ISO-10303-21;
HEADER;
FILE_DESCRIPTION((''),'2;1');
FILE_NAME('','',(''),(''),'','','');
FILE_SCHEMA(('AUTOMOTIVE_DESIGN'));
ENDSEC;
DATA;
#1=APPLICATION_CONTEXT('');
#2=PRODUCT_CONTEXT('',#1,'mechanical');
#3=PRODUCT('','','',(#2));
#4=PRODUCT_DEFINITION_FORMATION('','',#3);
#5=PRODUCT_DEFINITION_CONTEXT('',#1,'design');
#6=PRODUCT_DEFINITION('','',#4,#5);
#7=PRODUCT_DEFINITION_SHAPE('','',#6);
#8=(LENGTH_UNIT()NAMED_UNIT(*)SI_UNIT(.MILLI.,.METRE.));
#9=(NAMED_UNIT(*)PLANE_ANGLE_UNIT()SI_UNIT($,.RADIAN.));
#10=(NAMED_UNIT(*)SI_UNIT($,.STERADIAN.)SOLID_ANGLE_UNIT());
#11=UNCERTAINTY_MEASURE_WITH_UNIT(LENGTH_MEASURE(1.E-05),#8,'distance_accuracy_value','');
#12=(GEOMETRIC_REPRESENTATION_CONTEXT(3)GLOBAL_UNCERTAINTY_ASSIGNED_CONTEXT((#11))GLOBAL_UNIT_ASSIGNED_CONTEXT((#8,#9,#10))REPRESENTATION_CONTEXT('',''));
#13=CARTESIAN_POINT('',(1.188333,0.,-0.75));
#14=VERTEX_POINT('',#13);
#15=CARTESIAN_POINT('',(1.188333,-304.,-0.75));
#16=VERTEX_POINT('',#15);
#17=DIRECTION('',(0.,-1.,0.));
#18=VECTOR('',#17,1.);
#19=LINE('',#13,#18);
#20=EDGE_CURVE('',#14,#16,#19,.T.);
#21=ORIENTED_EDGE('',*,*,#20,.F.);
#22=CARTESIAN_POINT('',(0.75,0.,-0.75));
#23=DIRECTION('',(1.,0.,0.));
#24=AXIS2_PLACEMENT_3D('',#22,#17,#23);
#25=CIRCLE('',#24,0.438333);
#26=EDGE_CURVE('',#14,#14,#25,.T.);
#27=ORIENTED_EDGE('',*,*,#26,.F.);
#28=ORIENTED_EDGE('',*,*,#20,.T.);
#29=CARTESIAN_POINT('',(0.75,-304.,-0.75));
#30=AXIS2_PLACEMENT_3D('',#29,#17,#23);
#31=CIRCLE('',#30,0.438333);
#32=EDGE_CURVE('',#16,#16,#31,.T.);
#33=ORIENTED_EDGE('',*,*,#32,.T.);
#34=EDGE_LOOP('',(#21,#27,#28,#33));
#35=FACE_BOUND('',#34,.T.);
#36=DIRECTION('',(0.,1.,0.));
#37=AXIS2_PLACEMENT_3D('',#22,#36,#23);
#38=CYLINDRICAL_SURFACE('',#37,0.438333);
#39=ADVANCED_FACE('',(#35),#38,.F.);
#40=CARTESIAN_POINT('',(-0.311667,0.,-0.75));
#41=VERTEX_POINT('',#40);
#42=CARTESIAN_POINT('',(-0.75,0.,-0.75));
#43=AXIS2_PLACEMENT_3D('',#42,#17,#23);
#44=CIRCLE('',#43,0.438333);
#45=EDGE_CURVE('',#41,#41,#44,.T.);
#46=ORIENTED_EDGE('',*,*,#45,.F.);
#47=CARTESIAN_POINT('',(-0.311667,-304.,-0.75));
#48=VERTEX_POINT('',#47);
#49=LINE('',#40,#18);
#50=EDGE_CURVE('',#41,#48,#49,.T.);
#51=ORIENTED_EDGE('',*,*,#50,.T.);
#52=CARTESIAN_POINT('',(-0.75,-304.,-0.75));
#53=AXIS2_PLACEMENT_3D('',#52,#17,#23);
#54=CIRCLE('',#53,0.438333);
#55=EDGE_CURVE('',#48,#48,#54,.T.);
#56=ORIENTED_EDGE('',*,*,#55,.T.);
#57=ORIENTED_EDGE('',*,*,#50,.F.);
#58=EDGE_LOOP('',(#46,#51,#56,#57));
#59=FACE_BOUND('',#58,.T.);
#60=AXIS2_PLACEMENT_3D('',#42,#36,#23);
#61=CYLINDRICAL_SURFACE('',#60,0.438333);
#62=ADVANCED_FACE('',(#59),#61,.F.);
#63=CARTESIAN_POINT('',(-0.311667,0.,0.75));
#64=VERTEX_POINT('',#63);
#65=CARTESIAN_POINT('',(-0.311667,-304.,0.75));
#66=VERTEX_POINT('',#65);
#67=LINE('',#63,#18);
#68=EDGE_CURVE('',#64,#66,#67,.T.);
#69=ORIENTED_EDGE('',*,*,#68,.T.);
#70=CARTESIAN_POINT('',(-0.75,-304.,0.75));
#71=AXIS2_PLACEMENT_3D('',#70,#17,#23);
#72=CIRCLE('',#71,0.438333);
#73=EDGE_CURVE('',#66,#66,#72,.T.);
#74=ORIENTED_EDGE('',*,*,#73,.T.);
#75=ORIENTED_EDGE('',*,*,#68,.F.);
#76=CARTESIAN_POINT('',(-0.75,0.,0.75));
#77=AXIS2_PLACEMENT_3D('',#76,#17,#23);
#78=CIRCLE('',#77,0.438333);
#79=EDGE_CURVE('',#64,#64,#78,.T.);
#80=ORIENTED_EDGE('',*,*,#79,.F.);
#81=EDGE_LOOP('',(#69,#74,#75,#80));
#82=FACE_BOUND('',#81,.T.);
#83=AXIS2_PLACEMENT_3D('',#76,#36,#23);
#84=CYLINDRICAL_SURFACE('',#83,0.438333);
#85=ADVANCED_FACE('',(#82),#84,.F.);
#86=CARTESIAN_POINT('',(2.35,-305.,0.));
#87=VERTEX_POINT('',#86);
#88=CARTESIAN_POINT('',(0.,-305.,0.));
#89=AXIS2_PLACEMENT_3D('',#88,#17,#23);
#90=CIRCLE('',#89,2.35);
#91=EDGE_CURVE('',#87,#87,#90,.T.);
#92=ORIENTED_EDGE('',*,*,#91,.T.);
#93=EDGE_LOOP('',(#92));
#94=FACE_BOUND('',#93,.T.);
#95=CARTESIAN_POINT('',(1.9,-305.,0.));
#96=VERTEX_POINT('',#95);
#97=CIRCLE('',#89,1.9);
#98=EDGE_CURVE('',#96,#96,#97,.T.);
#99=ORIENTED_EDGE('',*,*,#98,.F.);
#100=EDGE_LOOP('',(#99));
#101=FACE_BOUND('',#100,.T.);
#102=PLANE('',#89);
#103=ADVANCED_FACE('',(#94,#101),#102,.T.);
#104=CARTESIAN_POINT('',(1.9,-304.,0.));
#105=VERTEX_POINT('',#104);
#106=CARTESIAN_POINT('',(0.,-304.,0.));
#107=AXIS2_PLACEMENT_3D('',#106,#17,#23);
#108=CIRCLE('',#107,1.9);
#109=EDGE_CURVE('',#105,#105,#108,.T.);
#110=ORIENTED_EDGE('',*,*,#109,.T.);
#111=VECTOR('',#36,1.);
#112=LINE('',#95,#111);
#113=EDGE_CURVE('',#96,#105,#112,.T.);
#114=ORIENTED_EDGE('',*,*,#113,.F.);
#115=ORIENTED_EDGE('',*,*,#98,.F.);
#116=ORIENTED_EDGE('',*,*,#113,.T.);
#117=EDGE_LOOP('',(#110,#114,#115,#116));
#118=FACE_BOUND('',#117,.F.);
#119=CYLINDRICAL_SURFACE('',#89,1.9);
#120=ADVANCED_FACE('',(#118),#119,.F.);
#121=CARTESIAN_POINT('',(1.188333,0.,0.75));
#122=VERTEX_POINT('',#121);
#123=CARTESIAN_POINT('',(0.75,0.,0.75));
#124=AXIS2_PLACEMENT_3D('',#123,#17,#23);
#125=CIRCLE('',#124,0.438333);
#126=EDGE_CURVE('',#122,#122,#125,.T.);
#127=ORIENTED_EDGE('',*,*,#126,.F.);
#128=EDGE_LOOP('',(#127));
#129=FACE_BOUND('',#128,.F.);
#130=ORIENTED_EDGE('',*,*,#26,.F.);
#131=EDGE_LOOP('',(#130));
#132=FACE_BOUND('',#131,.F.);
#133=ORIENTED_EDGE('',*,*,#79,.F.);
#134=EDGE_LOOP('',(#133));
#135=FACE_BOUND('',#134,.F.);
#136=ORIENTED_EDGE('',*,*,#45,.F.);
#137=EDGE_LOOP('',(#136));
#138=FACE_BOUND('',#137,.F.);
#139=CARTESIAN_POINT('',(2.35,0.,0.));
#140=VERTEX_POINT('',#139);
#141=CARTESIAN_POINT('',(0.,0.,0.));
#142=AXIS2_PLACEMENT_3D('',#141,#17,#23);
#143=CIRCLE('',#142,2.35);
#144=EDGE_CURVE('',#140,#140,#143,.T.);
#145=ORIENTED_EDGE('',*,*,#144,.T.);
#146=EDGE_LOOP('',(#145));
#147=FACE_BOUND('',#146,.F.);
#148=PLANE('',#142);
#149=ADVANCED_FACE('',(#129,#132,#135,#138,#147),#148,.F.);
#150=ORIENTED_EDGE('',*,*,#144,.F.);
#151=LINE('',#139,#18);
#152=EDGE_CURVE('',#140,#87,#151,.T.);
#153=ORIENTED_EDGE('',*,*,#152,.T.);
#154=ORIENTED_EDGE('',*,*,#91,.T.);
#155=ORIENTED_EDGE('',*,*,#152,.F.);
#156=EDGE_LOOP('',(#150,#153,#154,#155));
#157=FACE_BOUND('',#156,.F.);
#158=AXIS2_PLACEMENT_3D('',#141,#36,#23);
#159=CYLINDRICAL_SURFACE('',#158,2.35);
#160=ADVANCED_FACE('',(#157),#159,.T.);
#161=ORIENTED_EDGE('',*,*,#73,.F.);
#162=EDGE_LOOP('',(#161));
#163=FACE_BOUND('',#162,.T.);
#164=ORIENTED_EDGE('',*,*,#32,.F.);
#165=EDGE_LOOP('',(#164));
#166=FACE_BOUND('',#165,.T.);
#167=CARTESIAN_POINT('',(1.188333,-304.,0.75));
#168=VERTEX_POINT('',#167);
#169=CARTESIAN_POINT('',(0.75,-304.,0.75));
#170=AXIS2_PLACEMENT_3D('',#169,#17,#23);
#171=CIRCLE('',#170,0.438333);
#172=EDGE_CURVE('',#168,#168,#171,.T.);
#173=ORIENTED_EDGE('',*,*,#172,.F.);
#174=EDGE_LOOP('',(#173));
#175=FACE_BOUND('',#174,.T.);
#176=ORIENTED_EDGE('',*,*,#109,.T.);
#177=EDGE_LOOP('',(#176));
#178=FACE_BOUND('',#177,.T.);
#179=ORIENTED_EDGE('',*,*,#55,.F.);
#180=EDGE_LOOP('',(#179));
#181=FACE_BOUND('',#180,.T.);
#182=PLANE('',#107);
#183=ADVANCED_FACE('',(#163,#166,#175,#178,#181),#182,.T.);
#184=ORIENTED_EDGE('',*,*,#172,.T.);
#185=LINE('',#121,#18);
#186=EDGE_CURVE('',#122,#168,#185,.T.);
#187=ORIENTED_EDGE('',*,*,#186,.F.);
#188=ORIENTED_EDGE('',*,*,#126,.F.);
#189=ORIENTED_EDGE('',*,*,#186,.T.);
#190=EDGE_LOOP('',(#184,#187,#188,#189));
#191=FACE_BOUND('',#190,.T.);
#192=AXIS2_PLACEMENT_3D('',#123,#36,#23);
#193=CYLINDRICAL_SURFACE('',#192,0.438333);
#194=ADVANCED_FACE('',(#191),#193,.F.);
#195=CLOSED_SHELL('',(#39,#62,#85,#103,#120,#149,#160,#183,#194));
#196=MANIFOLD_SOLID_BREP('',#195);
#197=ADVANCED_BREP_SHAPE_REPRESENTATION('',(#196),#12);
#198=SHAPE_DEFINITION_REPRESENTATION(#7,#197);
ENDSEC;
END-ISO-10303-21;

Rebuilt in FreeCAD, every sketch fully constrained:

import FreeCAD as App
import Part
import Sketcher
from FreeCAD import Vector
Q = App.Units.Quantity

doc = App.newDocument("Part")
body = doc.addObject("PartDesign::Body", "Body")

sketch1 = doc.addObject("Sketcher::SketchObject", "Sketch")
body.addObject(sketch1)
sketch1.AttachmentSupport = (doc.XZ_Plane, [""])
sketch1.MapMode = "FlatFace"
sketch1.addGeometry(Part.Circle(Vector(0, 0, 0), Vector(0, 0, 1), 2.35), False)
sketch1.addGeometry(Part.Circle(Vector(-0.75, -0.75, 0), Vector(0, 0, 1), 0.44), False)
sketch1.addGeometry(Part.Circle(Vector(0.75, -0.75, 0), Vector(0, 0, 1), 0.44), False)
sketch1.addGeometry(Part.Circle(Vector(-0.75, 0.75, 0), Vector(0, 0, 1), 0.44), False)
sketch1.addGeometry(Part.Circle(Vector(0.75, 0.75, 0), Vector(0, 0, 1), 0.44), False)
sketch1.addConstraint(Sketcher.Constraint("Coincident", 0, 3, -1, 1))
sketch1.addConstraint(Sketcher.Constraint("Equal", 1, 2))
sketch1.addConstraint(Sketcher.Constraint("Equal", 2, 3))
sketch1.addConstraint(Sketcher.Constraint("Equal", 3, 4))
sketch1.addConstraint(Sketcher.Constraint("Symmetric", 2, 3, 3, 3, -1, 1))
sketch1.addConstraint(Sketcher.Constraint("Symmetric", 1, 3, 4, 3, -1, 1))
sketch1.addConstraint(Sketcher.Constraint("Symmetric", 1, 3, 2, 3, -2))
sketch1.addConstraint(Sketcher.Constraint("Diameter", 0, Q("4.7 mm")))
sketch1.addConstraint(Sketcher.Constraint("DistanceX", 1, 3, 2, 3, Q("1.5 mm")))
sketch1.addConstraint(Sketcher.Constraint("DistanceY", 1, 3, 3, 3, Q("1.5 mm")))
sketch1.addConstraint(Sketcher.Constraint("Diameter", 1, Q("0.876666 mm")))
pad1 = doc.addObject("PartDesign::Pad", "Pad")
body.addObject(pad1)
pad1.Profile = sketch1
pad1.Length = 305

sketch2 = doc.addObject("Sketcher::SketchObject", "Sketch001")
body.addObject(sketch2)
sketch2.AttachmentSupport = (doc.XZ_Plane, [""])
sketch2.MapMode = "FlatFace"
sketch2.AttachmentOffset = App.Placement(Vector(0, 0, 305), App.Rotation())
sketch2.addGeometry(Part.Circle(Vector(0, 0, 0), Vector(0, 0, 1), 1.9), False)
sketch2.addGeometry(Part.Circle(Vector(-0.75, -0.75, 0), Vector(0, 0, 1), 0.44), False)
sketch2.addGeometry(Part.Circle(Vector(0.75, -0.75, 0), Vector(0, 0, 1), 0.44), False)
sketch2.addGeometry(Part.Circle(Vector(-0.75, 0.75, 0), Vector(0, 0, 1), 0.44), False)
sketch2.addGeometry(Part.Circle(Vector(0.75, 0.75, 0), Vector(0, 0, 1), 0.44), False)
sketch2.addConstraint(Sketcher.Constraint("Coincident", 0, 3, -1, 1))
sketch2.addConstraint(Sketcher.Constraint("Equal", 1, 2))
sketch2.addConstraint(Sketcher.Constraint("Equal", 2, 3))
sketch2.addConstraint(Sketcher.Constraint("Equal", 3, 4))
sketch2.addConstraint(Sketcher.Constraint("Symmetric", 2, 3, 3, 3, -1, 1))
sketch2.addConstraint(Sketcher.Constraint("Symmetric", 1, 3, 4, 3, -1, 1))
sketch2.addConstraint(Sketcher.Constraint("Symmetric", 1, 3, 2, 3, -2))
sketch2.addConstraint(Sketcher.Constraint("Diameter", 0, Q("3.8 mm")))
sketch2.addConstraint(Sketcher.Constraint("DistanceX", 1, 3, 2, 3, Q("1.5 mm")))
sketch2.addConstraint(Sketcher.Constraint("DistanceY", 1, 3, 3, 3, Q("1.5 mm")))
sketch2.addConstraint(Sketcher.Constraint("Diameter", 1, Q("0.876666 mm")))
pocket1 = doc.addObject("PartDesign::Pocket", "Pocket")
body.addObject(pocket1)
pocket1.Profile = sketch2
pocket1.Length = 1

doc.recompute()
